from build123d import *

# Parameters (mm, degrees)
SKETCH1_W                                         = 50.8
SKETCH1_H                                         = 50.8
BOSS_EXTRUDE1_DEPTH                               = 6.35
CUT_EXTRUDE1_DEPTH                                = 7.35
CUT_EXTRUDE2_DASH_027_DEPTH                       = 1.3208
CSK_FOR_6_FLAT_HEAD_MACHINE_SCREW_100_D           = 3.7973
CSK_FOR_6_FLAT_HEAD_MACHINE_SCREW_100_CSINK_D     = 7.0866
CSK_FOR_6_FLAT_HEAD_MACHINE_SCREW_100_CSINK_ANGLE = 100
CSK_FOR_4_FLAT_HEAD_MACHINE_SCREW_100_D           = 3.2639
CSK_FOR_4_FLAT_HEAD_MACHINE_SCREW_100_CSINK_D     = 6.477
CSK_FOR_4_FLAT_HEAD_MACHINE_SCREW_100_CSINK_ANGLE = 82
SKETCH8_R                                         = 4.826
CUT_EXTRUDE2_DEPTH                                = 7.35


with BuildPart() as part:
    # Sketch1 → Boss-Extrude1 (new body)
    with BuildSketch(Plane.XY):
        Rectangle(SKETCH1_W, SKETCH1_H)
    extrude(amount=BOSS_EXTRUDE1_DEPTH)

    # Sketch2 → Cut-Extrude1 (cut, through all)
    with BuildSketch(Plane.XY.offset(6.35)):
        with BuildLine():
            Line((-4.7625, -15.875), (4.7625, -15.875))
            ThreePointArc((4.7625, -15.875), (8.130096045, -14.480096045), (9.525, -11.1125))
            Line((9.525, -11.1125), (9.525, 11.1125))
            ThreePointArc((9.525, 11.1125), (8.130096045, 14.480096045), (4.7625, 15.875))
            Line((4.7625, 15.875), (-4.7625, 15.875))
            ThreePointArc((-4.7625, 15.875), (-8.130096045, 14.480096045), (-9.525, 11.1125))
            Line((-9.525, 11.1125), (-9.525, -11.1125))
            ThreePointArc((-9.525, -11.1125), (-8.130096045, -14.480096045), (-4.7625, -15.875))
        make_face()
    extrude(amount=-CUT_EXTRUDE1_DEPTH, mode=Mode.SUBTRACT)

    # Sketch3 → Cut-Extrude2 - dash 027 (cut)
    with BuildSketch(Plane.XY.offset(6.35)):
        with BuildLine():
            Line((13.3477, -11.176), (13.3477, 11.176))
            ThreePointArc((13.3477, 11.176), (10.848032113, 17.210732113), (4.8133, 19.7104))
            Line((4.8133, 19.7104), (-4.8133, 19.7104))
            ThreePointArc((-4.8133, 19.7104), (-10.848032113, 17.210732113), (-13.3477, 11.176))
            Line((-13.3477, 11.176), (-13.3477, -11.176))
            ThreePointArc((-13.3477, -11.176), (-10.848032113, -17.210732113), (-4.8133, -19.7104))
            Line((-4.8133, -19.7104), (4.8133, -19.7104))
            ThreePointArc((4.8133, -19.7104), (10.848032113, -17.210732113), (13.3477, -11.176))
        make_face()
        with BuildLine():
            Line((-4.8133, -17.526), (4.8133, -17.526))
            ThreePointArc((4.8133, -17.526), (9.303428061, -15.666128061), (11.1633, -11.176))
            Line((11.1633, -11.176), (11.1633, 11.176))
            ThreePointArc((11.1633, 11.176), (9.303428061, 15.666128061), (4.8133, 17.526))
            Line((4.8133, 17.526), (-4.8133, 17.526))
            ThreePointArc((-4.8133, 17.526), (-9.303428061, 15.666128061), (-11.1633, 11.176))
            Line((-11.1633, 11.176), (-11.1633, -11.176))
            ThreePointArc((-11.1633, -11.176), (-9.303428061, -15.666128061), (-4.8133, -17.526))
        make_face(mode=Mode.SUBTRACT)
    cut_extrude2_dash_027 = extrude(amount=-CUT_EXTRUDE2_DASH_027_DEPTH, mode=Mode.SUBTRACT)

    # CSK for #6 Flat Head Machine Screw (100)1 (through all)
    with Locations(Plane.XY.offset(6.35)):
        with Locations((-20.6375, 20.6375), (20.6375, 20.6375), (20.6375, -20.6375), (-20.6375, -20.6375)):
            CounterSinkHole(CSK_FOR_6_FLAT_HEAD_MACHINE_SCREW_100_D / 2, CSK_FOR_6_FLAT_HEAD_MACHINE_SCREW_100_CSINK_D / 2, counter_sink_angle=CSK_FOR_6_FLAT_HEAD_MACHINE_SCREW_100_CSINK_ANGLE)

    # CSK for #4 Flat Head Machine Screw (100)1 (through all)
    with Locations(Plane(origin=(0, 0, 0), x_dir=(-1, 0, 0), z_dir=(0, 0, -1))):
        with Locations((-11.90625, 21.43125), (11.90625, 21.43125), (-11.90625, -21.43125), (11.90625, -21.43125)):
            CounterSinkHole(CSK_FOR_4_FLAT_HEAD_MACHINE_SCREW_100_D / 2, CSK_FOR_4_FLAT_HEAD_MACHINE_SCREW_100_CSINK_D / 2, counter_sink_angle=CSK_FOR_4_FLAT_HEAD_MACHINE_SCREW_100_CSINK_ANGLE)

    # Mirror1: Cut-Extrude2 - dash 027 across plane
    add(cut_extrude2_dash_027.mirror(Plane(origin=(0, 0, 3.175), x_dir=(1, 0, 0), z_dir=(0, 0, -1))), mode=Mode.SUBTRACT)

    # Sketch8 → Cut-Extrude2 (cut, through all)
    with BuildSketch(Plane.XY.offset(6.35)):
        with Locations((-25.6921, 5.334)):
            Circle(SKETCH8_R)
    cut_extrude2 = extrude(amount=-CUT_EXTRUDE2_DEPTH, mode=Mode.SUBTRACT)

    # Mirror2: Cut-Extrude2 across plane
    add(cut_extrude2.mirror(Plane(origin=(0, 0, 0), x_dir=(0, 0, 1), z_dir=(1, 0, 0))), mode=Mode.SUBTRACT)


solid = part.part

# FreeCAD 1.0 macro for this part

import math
import FreeCAD as App
import Part
import Sketcher
Q = App.Units.Quantity


def add_polygon(sketch, points):
    """Adds a closed chain of lines whose ends are joined by coincident constraints."""
    first, n = sketch.GeometryCount, len(points)
    for a, b in zip(points, points[1:] + points[:1]):
        sketch.addGeometry(Part.LineSegment(App.Vector(*a, 0), App.Vector(*b, 0)), False)
    for i in range(n):
        sketch.addConstraint(Sketcher.Constraint("Coincident", first + i, 2, first + (i + 1) % n, 1))

doc = App.newDocument("Part")
body = doc.addObject("PartDesign::Body", "Body")

sketch1 = doc.addObject("Sketcher::SketchObject", "Sketch")
body.addObject(sketch1)
sketch1.AttachmentSupport = (doc.XY_Plane, [""])
sketch1.MapMode = "FlatFace"
add_polygon(sketch1, [(-25, 25), (-25, -25), (25, -25), (25, 25)])
sketch1.addConstraint([
    Sketcher.Constraint("Vertical", 0),
    Sketcher.Constraint("Horizontal", 1),
    Sketcher.Constraint("Vertical", 2),
    Sketcher.Constraint("Horizontal", 3),
    Sketcher.Constraint("Symmetric", 0, 2, 2, 2, -1, 1),
    Sketcher.Constraint("Equal", 3, 0),
    Sketcher.Constraint("DistanceX", 1, 1, 1, 2, Q("2 in")),
])
pad1 = doc.addObject("PartDesign::Pad", "Pad")
body.addObject(pad1)
pad1.Profile = sketch1
pad1.Length = Q("0.25 in")

sketch2 = doc.addObject("Sketcher::SketchObject", "Sketch001")
body.addObject(sketch2)
sketch2.AttachmentSupport = (doc.XY_Plane, [""])
sketch2.MapMode = "FlatFace"
sketch2.AttachmentOffset = App.Placement(App.Vector(0, 0, 0.25 * 25.4), App.Rotation())
sketch2.addGeometry([
    Part.LineSegment(App.Vector(-4.8, -15.9, 0), App.Vector(4.8, -15.9, 0)),
    Part.ArcOfCircle(Part.Circle(App.Vector(4.8, -11.1, 0), App.Vector(0, 0, 1), 4.8), math.radians(-90), math.radians(0)),
    Part.LineSegment(App.Vector(9.5, -11.1, 0), App.Vector(9.5, 11.1, 0)),
    Part.ArcOfCircle(Part.Circle(App.Vector(4.8, 11.1, 0), App.Vector(0, 0, 1), 4.8), math.radians(0), math.radians(90)),
    Part.LineSegment(App.Vector(4.8, 15.9, 0), App.Vector(-4.8, 15.9, 0)),
    Part.ArcOfCircle(Part.Circle(App.Vector(-4.8, 11.1, 0), App.Vector(0, 0, 1), 4.8), math.radians(90), math.radians(180)),
    Part.LineSegment(App.Vector(-9.5, 11.1, 0), App.Vector(-9.5, -11.1, 0)),
    Part.ArcOfCircle(Part.Circle(App.Vector(-4.8, -11.1, 0), App.Vector(0, 0, 1), 4.8), math.radians(-180), math.radians(-90)),
], False)
sketch2.addConstraint([
    Sketcher.Constraint("Tangent", 0, 2, 1, 1),
    Sketcher.Constraint("Tangent", 1, 2, 2, 1),
    Sketcher.Constraint("Tangent", 2, 2, 3, 1),
    Sketcher.Constraint("Tangent", 3, 2, 4, 1),
    Sketcher.Constraint("Tangent", 4, 2, 5, 1),
    Sketcher.Constraint("Tangent", 5, 2, 6, 1),
    Sketcher.Constraint("Tangent", 6, 2, 7, 1),
    Sketcher.Constraint("Tangent", 7, 2, 0, 1),
    Sketcher.Constraint("Horizontal", 0),
    Sketcher.Constraint("Vertical", 2),
    Sketcher.Constraint("Horizontal", 4),
    Sketcher.Constraint("Vertical", 6),
    Sketcher.Constraint("Equal", 1, 3),
    Sketcher.Constraint("Equal", 3, 5),
    Sketcher.Constraint("Equal", 5, 7),
    Sketcher.Constraint("Symmetric", 1, 3, 5, 3, -1, 1),
    Sketcher.Constraint("Radius", 1, Q("0.1875 in")),
    Sketcher.Constraint("DistanceX", 0, 1, 0, 2, Q("0.375 in")),
    Sketcher.Constraint("DistanceY", 2, 1, 2, 2, Q("0.875 in")),
])
pocket1 = doc.addObject("PartDesign::Pocket", "Pocket")
body.addObject(pocket1)
pocket1.Profile = sketch2
pocket1.Type = "ThroughAll"

sketch3 = doc.addObject("Sketcher::SketchObject", "Sketch002")
body.addObject(sketch3)
sketch3.AttachmentSupport = (doc.XY_Plane, [""])
sketch3.MapMode = "FlatFace"
sketch3.AttachmentOffset = App.Placement(App.Vector(0, 0, 0.25 * 25.4), App.Rotation())
sketch3.addGeometry([
    Part.LineSegment(App.Vector(13, -11, 0), App.Vector(13, 11, 0)),
    Part.ArcOfCircle(Part.Circle(App.Vector(5, 11, 0), App.Vector(0, 0, 1), 9), math.radians(0), math.radians(90)),
    Part.LineSegment(App.Vector(5, 20, 0), App.Vector(-5, 20, 0)),
    Part.ArcOfCircle(Part.Circle(App.Vector(-5, 11, 0), App.Vector(0, 0, 1), 9), math.radians(90), math.radians(180)),
    Part.LineSegment(App.Vector(-13, 11, 0), App.Vector(-13, -11, 0)),
    Part.ArcOfCircle(Part.Circle(App.Vector(-5, -11, 0), App.Vector(0, 0, 1), 9), math.radians(-180), math.radians(-90)),
    Part.LineSegment(App.Vector(-5, -20, 0), App.Vector(5, -20, 0)),
    Part.ArcOfCircle(Part.Circle(App.Vector(5, -11, 0), App.Vector(0, 0, 1), 9), math.radians(-90), math.radians(0)),
    Part.LineSegment(App.Vector(5, -18, 0), App.Vector(-5, -18, 0)),
    Part.ArcOfCircle(Part.Circle(App.Vector(-5, -11, 0), App.Vector(0, 0, 1), 6), math.radians(180), math.radians(270)),
    Part.LineSegment(App.Vector(-11, -11, 0), App.Vector(-11, 11, 0)),
    Part.ArcOfCircle(Part.Circle(App.Vector(-5, 11, 0), App.Vector(0, 0, 1), 6), math.radians(90), math.radians(180)),
    Part.LineSegment(App.Vector(-5, 18, 0), App.Vector(5, 18, 0)),
    Part.ArcOfCircle(Part.Circle(App.Vector(5, 11, 0), App.Vector(0, 0, 1), 6), math.radians(0), math.radians(90)),
    Part.LineSegment(App.Vector(11, 11, 0), App.Vector(11, -11, 0)),
    Part.ArcOfCircle(Part.Circle(App.Vector(5, -11, 0), App.Vector(0, 0, 1), 6), math.radians(-90), math.radians(0)),
], False)
sketch3.addConstraint([
    Sketcher.Constraint("Tangent", 0, 2, 1, 1),
    Sketcher.Constraint("Tangent", 1, 2, 2, 1),
    Sketcher.Constraint("Tangent", 2, 2, 3, 1),
    Sketcher.Constraint("Tangent", 3, 2, 4, 1),
    Sketcher.Constraint("Tangent", 4, 2, 5, 1),
    Sketcher.Constraint("Tangent", 5, 2, 6, 1),
    Sketcher.Constraint("Tangent", 6, 2, 7, 1),
    Sketcher.Constraint("Tangent", 7, 2, 0, 1),
    Sketcher.Constraint("Tangent", 8, 2, 9, 2),
    Sketcher.Constraint("Tangent", 9, 1, 10, 1),
    Sketcher.Constraint("Tangent", 10, 2, 11, 2),
    Sketcher.Constraint("Tangent", 11, 1, 12, 1),
    Sketcher.Constraint("Tangent", 12, 2, 13, 2),
    Sketcher.Constraint("Tangent", 13, 1, 14, 1),
    Sketcher.Constraint("Tangent", 14, 2, 15, 2),
    Sketcher.Constraint("Tangent", 15, 1, 8, 1),
    Sketcher.Constraint("Vertical", 0),
    Sketcher.Constraint("Horizontal", 2),
    Sketcher.Constraint("Vertical", 4),
    Sketcher.Constraint("Horizontal", 6),
    Sketcher.Constraint("Horizontal", 8),
    Sketcher.Constraint("Vertical", 10),
    Sketcher.Constraint("Horizontal", 12),
    Sketcher.Constraint("Vertical", 14),
    Sketcher.Constraint("Coincident", 9, 3, 5, 3),
    Sketcher.Constraint("Coincident", 11, 3, 3, 3),
    Sketcher.Constraint("Coincident", 13, 3, 1, 3),
    Sketcher.Constraint("Equal", 1, 3),
    Sketcher.Constraint("Equal", 3, 5),
    Sketcher.Constraint("Equal", 5, 7),
    Sketcher.Constraint("Equal", 13, 15),
    Sketcher.Constraint("Symmetric", 1, 3, 5, 3, -1, 1),
    Sketcher.Constraint("Radius", 9, Q("0.25 in")),
    Sketcher.Constraint("Radius", 1, Q("0.336 in")),
    Sketcher.Constraint("DistanceY", 0, 1, 0, 2, Q("0.88 in")),
    Sketcher.Constraint("DistanceX", 2, 2, 2, 1, Q("0.379 in")),
])
pocket2 = doc.addObject("PartDesign::Pocket", "Pocket001")
body.addObject(pocket2)
pocket2.Profile = sketch3
pocket2.Length = Q("0.052 in")

sketch4 = doc.addObject("Sketcher::SketchObject", "Sketch003")
body.addObject(sketch4)
sketch4.AttachmentSupport = (doc.XY_Plane, [""])
sketch4.MapMode = "FlatFace"
sketch4.AttachmentOffset = App.Placement(App.Vector(0, 0, 0.25 * 25.4), App.Rotation())
sketch4.addGeometry([
    Part.Circle(App.Vector(-20.6, 20.6, 0), App.Vector(0, 0, 1), 1.9),
    Part.Circle(App.Vector(20.6, 20.6, 0), App.Vector(0, 0, 1), 1.9),
    Part.Circle(App.Vector(20.6, -20.6, 0), App.Vector(0, 0, 1), 1.9),
    Part.Circle(App.Vector(-20.6, -20.6, 0), App.Vector(0, 0, 1), 1.9),
], False)
sketch4.addConstraint([
    Sketcher.Constraint("Equal", 0, 1),
    Sketcher.Constraint("Equal", 1, 2),
    Sketcher.Constraint("Equal", 2, 3),
    Sketcher.Constraint("Symmetric", 0, 3, 2, 3, -1, 1),
    Sketcher.Constraint("Symmetric", 1, 3, 3, 3, -1, 1),
    Sketcher.Constraint("Symmetric", 0, 3, 1, 3, -2),
    Sketcher.Constraint("Diameter", 0, Q("0.1495 in")),
    Sketcher.Constraint("DistanceX", 0, 3, -1, 1, Q("0.8125 in")),
    Sketcher.Constraint("DistanceY", -1, 1, 0, 3, Q("0.8125 in")),
])
doc.recompute()
hole = doc.addObject("PartDesign::Hole", "Hole")
body.addObject(hole)
hole.Profile = sketch4
hole.ThreadType = "None"
hole.Diameter = Q("0.1495 in")
hole.DepthType = "ThroughAll"
hole.HoleCutType = "Countersink"
hole.HoleCutDiameter = Q("0.279 in")
hole.HoleCutCountersinkAngle = 100

sketch5 = doc.addObject("Sketcher::SketchObject", "Sketch004")
body.addObject(sketch5)
sketch5.AttachmentSupport = (doc.XY_Plane, [""])
sketch5.MapMode = "FlatFace"
sketch5.addGeometry([
    Part.Circle(App.Vector(11.9, 21.4, 0), App.Vector(0, 0, 1), 1.6),
    Part.Circle(App.Vector(-11.9, 21.4, 0), App.Vector(0, 0, 1), 1.6),
    Part.Circle(App.Vector(11.9, -21.4, 0), App.Vector(0, 0, 1), 1.6),
    Part.Circle(App.Vector(-11.9, -21.4, 0), App.Vector(0, 0, 1), 1.6),
], False)
sketch5.addConstraint([
    Sketcher.Constraint("Equal", 0, 1),
    Sketcher.Constraint("Equal", 1, 2),
    Sketcher.Constraint("Equal", 2, 3),
    Sketcher.Constraint("Symmetric", 1, 3, 2, 3, -1, 1),
    Sketcher.Constraint("Symmetric", 0, 3, 3, 3, -1, 1),
    Sketcher.Constraint("Symmetric", 0, 3, 1, 3, -2),
    Sketcher.Constraint("Diameter", 0, Q("0.1285 in")),
    Sketcher.Constraint("DistanceX", -1, 1, 0, 3, Q("0.46875 in")),
    Sketcher.Constraint("DistanceY", -1, 1, 0, 3, Q("0.84375 in")),
])
doc.recompute()
hole2 = doc.addObject("PartDesign::Hole", "Hole001")
body.addObject(hole2)
hole2.Profile = sketch5
hole2.ThreadType = "None"
hole2.Diameter = Q("0.1285 in")
hole2.DepthType = "ThroughAll"
hole2.HoleCutType = "Countersink"
hole2.HoleCutDiameter = Q("0.255 in")
hole2.HoleCutCountersinkAngle = 82
hole2.Reversed = True
doc.recompute()

datumplane = doc.addObject("PartDesign::Plane", "DatumPlane")
body.addObject(datumplane)
datumplane.AttachmentSupport = (doc.XY_Plane, [""])
datumplane.MapMode = "FlatFace"
datumplane.AttachmentOffset = App.Placement(App.Vector(0, 0, 0.125 * 25.4), App.Rotation())
mirrored = doc.addObject("PartDesign::Mirrored", "Mirrored")
body.addObject(mirrored)
mirrored.Originals = [pocket2]
mirrored.MirrorPlane = (datumplane, [""])
body.Tip = mirrored

sketch6 = doc.addObject("Sketcher::SketchObject", "Sketch005")
body.addObject(sketch6)
sketch6.AttachmentSupport = (doc.XY_Plane, [""])
sketch6.MapMode = "FlatFace"
sketch6.AttachmentOffset = App.Placement(App.Vector(0, 0, 0.25 * 25.4), App.Rotation())
sketch6.addGeometry(Part.Circle(App.Vector(-25.7, 5.3, 0), App.Vector(0, 0, 1), 4.8), False)
sketch6.addConstraint([
    Sketcher.Constraint("Diameter", 0, Q("0.38 in")),
    Sketcher.Constraint("DistanceY", -1, 1, 0, 3, Q("0.21 in")),
    Sketcher.Constraint("DistanceX", 0, 3, -1, 1, Q("1.0115 in")),
])
pocket3 = doc.addObject("PartDesign::Pocket", "Pocket002")
body.addObject(pocket3)
pocket3.Profile = sketch6
pocket3.Type = "ThroughAll"
doc.recompute()

mirrored2 = doc.addObject("PartDesign::Mirrored", "Mirrored001")
body.addObject(mirrored2)
mirrored2.Originals = [pocket3]
mirrored2.MirrorPlane = (doc.YZ_Plane, [""])
body.Tip = mirrored2

doc.recompute()
